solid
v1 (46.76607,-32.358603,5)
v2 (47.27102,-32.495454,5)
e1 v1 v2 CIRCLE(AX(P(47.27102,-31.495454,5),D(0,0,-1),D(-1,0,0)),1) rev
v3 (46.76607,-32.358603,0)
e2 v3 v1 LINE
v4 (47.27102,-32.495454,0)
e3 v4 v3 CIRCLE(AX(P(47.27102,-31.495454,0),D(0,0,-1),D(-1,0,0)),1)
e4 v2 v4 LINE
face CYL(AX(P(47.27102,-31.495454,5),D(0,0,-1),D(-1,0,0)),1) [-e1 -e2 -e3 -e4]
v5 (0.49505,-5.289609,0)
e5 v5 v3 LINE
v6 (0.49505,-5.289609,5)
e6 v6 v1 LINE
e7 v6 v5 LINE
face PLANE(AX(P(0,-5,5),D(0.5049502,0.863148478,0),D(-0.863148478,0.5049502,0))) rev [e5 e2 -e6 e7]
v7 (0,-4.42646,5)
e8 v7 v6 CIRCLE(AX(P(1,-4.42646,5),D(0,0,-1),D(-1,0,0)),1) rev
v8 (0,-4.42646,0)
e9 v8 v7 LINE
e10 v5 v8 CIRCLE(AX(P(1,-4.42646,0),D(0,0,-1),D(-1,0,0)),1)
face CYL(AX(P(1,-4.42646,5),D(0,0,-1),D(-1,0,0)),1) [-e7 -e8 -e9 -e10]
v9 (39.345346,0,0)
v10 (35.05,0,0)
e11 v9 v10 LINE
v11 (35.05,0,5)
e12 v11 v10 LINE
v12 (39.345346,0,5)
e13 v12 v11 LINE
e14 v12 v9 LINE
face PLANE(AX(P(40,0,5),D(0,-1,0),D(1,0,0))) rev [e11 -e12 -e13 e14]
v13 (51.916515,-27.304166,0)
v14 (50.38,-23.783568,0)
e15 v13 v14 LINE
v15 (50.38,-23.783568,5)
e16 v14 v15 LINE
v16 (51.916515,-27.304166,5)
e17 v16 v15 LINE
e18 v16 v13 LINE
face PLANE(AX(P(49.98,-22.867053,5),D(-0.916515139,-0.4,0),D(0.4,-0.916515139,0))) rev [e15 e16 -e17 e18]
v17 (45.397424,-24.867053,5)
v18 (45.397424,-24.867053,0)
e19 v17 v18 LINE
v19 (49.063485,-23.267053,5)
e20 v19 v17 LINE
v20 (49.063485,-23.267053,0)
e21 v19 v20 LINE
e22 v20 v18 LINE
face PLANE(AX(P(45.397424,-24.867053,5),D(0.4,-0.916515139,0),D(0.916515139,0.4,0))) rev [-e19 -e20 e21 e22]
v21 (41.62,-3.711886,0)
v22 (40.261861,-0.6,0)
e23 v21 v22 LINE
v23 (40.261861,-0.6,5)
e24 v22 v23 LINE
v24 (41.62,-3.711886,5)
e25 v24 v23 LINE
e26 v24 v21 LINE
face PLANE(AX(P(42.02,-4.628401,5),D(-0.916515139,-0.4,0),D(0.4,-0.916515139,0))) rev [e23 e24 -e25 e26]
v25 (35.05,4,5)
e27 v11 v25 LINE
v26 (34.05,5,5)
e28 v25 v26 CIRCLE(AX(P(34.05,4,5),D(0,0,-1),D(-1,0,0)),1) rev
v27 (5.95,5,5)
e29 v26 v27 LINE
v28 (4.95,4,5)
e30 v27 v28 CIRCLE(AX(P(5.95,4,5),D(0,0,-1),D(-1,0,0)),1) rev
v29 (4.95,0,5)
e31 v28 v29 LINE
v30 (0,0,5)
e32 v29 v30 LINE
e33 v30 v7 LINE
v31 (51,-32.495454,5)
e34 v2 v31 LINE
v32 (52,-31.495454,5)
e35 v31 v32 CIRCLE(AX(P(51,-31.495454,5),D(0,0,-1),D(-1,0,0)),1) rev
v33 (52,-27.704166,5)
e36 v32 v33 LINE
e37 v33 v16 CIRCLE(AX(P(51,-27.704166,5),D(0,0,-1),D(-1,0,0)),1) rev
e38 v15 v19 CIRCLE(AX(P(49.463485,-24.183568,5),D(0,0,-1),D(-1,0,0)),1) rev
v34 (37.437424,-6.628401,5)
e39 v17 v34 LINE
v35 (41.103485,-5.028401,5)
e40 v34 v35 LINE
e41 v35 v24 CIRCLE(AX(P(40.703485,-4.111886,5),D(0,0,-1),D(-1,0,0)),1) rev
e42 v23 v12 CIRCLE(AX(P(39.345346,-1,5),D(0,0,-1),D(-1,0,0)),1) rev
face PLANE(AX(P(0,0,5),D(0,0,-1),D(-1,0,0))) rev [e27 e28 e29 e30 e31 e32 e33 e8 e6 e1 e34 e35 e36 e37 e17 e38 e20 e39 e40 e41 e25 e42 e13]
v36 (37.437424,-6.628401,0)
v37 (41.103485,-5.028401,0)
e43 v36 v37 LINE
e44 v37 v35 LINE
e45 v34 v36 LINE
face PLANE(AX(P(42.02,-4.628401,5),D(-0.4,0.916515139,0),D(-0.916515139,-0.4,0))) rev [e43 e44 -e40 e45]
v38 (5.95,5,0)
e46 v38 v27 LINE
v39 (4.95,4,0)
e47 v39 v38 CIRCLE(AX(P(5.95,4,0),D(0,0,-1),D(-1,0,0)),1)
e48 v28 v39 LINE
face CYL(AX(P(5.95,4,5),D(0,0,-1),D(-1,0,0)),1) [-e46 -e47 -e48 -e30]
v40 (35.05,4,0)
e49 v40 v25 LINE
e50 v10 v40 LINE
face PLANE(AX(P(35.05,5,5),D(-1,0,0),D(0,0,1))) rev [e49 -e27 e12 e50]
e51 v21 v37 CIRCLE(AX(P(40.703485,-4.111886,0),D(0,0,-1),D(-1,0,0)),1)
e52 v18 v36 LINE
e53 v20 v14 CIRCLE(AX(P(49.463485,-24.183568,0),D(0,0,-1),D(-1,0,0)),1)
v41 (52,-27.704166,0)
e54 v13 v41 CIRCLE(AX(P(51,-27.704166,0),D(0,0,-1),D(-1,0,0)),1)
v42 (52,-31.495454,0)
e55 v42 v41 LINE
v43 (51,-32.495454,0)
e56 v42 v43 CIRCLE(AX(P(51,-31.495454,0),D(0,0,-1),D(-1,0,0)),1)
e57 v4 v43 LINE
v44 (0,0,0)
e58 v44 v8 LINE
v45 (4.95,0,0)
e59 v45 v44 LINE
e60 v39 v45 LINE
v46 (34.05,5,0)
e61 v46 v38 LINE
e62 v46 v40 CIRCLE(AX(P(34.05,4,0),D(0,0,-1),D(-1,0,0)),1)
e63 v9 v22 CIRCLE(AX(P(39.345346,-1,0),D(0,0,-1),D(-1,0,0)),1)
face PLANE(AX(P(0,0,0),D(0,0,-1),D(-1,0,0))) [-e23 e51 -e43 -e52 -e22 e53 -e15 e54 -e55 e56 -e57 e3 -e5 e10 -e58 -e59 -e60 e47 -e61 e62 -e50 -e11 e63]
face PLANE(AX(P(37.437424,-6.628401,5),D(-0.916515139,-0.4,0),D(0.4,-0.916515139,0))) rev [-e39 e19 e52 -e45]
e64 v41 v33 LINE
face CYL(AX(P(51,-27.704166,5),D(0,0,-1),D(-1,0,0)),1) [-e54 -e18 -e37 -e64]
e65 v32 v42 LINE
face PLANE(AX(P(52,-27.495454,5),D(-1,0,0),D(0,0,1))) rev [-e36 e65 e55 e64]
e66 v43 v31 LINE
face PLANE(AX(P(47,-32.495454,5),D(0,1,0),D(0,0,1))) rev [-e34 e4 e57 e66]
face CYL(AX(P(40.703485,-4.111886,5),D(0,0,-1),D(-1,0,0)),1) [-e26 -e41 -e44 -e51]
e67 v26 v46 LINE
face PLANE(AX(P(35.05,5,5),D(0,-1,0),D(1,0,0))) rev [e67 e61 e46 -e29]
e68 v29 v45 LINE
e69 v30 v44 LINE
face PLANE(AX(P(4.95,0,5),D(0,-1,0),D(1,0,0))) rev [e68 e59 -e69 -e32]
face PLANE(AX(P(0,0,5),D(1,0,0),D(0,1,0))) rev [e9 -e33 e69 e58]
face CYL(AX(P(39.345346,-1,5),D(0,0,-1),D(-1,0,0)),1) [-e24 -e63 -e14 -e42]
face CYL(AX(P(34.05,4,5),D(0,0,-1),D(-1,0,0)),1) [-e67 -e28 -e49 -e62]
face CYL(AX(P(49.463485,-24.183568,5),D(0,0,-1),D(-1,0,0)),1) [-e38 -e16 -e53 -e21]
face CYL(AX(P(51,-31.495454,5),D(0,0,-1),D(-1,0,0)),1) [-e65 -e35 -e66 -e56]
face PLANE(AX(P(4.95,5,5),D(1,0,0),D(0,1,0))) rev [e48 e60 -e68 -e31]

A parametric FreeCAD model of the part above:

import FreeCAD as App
import Part
import Sketcher


def edges_at(feature, points):
    """Names of the edges that pass closest to the given points."""
    edges = feature.Shape.Edges
    near = lambda p: min(range(len(edges)), key=lambda i: edges[i].distToShape(Part.Vertex(*p))[0])
    return sorted({f"Edge{near(p) + 1}" for p in points})

doc = App.newDocument("Part")
body = doc.addObject("PartDesign::Body", "Body")

sketch1 = body.newObject("Sketcher::SketchObject", "Sketch")
sketch1.AttachmentSupport = (doc.getObject("XY_Plane"), [""])
sketch1.MapMode = "FlatFace"
sketch1.addGeometry([
    Part.LineSegment(App.Vector(37.437424, -6.628401, 0), App.Vector(42.02, -4.628401, 0)),
    Part.LineSegment(App.Vector(42.02, -4.628401, 0), App.Vector(40, 0, 0)),
    Part.LineSegment(App.Vector(40, 0, 0), App.Vector(35.05, 0, 0)),
    Part.LineSegment(App.Vector(35.05, 0, 0), App.Vector(35.05, 5, 0)),
    Part.LineSegment(App.Vector(35.05, 5, 0), App.Vector(4.95, 5, 0)),
    Part.LineSegment(App.Vector(4.95, 5, 0), App.Vector(4.95, 0, 0)),
    Part.LineSegment(App.Vector(4.95, 0, 0), App.Vector(0, 0, 0)),
    Part.LineSegment(App.Vector(0, 0, 0), App.Vector(0, -5, 0)),
    Part.LineSegment(App.Vector(0, -5, 0), App.Vector(47, -32.495454, 0)),
    Part.LineSegment(App.Vector(47, -32.495454, 0), App.Vector(52, -32.495454, 0)),
    Part.LineSegment(App.Vector(52, -32.495454, 0), App.Vector(52, -27.495454, 0)),
    Part.LineSegment(App.Vector(52, -27.495454, 0), App.Vector(49.98, -22.867053, 0)),
    Part.LineSegment(App.Vector(49.98, -22.867053, 0), App.Vector(45.397424, -24.867053, 0)),
    Part.LineSegment(App.Vector(45.397424, -24.867053, 0), App.Vector(37.437424, -6.628401, 0)),
], False)
sketch1.addConstraint([
    Sketcher.Constraint("Coincident", 0, 2, 1, 1),
    Sketcher.Constraint("Coincident", 1, 2, 2, 1),
    Sketcher.Constraint("Coincident", 2, 2, 3, 1),
    Sketcher.Constraint("Coincident", 3, 2, 4, 1),
    Sketcher.Constraint("Coincident", 4, 2, 5, 1),
    Sketcher.Constraint("Coincident", 5, 2, 6, 1),
    Sketcher.Constraint("Coincident", 6, 2, 7, 1),
    Sketcher.Constraint("Coincident", 7, 2, 8, 1),
    Sketcher.Constraint("Coincident", 8, 2, 9, 1),
    Sketcher.Constraint("Coincident", 9, 2, 10, 1),
    Sketcher.Constraint("Coincident", 10, 2, 11, 1),
    Sketcher.Constraint("Coincident", 11, 2, 12, 1),
    Sketcher.Constraint("Coincident", 12, 2, 13, 1),
    Sketcher.Constraint("Coincident", 13, 2, 0, 1),
    Sketcher.Constraint("Horizontal", 2),
    Sketcher.Constraint("Vertical", 3),
    Sketcher.Constraint("Horizontal", 4),
    Sketcher.Constraint("Vertical", 5),
    Sketcher.Constraint("Horizontal", 6),
    Sketcher.Constraint("Vertical", 7),
    Sketcher.Constraint("Horizontal", 9),
    Sketcher.Constraint("Vertical", 10),
    Sketcher.Constraint("Coincident", 6, 2, -1, 1),
    Sketcher.Constraint("PointOnObject", 1, 2, -1),
    Sketcher.Constraint("Perpendicular", 0, 1),
    Sketcher.Constraint("Parallel", 1, 11),
    Sketcher.Constraint("Perpendicular", 11, 12),
    Sketcher.Constraint("Perpendicular", 12, 13),
    Sketcher.Constraint("Equal", 2, 6),
    Sketcher.Constraint("Equal", 9, 3),
    Sketcher.Constraint("Equal", 5, 7),
    Sketcher.Constraint("Equal", 7, 10),
    Sketcher.Constraint("Equal", 1, 11),
    Sketcher.Constraint("Equal", 0, 12),
    Sketcher.Constraint("DistanceX", 9, 1, 9, 2, 5.0),
    Sketcher.Constraint("Distance", 0, 5.0),
    Sketcher.Constraint("DistanceX", 4, 2, 4, 1, 30.1),
    Sketcher.Constraint("DistanceX", -1, 1, 1, 2, 40.0),
    Sketcher.Constraint("DistanceX", -1, 1, 8, 2, 47.0),
    Sketcher.Constraint("DistanceY", 12, 2, 11, 2, 2.0),
    Sketcher.Constraint("Distance", 13, 19.9),
])
pad1 = body.newObject("PartDesign::Pad", "Pad")
pad1.Profile = sketch1
pad1.Length = 5
doc.recompute()

fillet = body.newObject("PartDesign::Fillet", "Fillet")
fillet.Base = (pad1, edges_at(pad1, [
    (4.95, 5, 2.5),
    (35.05, 5, 2.5),
    (40, 0, 2.5),
    (42.02, -4.628, 2.5),
    (49.98, -22.867, 2.5),
    (52, -27.495, 2.5),
    (52, -32.495, 2.5),
    (47, -32.495, 2.5),
    (0, -5, 2.5),
]))
fillet.Radius = 1

doc.recompute()
